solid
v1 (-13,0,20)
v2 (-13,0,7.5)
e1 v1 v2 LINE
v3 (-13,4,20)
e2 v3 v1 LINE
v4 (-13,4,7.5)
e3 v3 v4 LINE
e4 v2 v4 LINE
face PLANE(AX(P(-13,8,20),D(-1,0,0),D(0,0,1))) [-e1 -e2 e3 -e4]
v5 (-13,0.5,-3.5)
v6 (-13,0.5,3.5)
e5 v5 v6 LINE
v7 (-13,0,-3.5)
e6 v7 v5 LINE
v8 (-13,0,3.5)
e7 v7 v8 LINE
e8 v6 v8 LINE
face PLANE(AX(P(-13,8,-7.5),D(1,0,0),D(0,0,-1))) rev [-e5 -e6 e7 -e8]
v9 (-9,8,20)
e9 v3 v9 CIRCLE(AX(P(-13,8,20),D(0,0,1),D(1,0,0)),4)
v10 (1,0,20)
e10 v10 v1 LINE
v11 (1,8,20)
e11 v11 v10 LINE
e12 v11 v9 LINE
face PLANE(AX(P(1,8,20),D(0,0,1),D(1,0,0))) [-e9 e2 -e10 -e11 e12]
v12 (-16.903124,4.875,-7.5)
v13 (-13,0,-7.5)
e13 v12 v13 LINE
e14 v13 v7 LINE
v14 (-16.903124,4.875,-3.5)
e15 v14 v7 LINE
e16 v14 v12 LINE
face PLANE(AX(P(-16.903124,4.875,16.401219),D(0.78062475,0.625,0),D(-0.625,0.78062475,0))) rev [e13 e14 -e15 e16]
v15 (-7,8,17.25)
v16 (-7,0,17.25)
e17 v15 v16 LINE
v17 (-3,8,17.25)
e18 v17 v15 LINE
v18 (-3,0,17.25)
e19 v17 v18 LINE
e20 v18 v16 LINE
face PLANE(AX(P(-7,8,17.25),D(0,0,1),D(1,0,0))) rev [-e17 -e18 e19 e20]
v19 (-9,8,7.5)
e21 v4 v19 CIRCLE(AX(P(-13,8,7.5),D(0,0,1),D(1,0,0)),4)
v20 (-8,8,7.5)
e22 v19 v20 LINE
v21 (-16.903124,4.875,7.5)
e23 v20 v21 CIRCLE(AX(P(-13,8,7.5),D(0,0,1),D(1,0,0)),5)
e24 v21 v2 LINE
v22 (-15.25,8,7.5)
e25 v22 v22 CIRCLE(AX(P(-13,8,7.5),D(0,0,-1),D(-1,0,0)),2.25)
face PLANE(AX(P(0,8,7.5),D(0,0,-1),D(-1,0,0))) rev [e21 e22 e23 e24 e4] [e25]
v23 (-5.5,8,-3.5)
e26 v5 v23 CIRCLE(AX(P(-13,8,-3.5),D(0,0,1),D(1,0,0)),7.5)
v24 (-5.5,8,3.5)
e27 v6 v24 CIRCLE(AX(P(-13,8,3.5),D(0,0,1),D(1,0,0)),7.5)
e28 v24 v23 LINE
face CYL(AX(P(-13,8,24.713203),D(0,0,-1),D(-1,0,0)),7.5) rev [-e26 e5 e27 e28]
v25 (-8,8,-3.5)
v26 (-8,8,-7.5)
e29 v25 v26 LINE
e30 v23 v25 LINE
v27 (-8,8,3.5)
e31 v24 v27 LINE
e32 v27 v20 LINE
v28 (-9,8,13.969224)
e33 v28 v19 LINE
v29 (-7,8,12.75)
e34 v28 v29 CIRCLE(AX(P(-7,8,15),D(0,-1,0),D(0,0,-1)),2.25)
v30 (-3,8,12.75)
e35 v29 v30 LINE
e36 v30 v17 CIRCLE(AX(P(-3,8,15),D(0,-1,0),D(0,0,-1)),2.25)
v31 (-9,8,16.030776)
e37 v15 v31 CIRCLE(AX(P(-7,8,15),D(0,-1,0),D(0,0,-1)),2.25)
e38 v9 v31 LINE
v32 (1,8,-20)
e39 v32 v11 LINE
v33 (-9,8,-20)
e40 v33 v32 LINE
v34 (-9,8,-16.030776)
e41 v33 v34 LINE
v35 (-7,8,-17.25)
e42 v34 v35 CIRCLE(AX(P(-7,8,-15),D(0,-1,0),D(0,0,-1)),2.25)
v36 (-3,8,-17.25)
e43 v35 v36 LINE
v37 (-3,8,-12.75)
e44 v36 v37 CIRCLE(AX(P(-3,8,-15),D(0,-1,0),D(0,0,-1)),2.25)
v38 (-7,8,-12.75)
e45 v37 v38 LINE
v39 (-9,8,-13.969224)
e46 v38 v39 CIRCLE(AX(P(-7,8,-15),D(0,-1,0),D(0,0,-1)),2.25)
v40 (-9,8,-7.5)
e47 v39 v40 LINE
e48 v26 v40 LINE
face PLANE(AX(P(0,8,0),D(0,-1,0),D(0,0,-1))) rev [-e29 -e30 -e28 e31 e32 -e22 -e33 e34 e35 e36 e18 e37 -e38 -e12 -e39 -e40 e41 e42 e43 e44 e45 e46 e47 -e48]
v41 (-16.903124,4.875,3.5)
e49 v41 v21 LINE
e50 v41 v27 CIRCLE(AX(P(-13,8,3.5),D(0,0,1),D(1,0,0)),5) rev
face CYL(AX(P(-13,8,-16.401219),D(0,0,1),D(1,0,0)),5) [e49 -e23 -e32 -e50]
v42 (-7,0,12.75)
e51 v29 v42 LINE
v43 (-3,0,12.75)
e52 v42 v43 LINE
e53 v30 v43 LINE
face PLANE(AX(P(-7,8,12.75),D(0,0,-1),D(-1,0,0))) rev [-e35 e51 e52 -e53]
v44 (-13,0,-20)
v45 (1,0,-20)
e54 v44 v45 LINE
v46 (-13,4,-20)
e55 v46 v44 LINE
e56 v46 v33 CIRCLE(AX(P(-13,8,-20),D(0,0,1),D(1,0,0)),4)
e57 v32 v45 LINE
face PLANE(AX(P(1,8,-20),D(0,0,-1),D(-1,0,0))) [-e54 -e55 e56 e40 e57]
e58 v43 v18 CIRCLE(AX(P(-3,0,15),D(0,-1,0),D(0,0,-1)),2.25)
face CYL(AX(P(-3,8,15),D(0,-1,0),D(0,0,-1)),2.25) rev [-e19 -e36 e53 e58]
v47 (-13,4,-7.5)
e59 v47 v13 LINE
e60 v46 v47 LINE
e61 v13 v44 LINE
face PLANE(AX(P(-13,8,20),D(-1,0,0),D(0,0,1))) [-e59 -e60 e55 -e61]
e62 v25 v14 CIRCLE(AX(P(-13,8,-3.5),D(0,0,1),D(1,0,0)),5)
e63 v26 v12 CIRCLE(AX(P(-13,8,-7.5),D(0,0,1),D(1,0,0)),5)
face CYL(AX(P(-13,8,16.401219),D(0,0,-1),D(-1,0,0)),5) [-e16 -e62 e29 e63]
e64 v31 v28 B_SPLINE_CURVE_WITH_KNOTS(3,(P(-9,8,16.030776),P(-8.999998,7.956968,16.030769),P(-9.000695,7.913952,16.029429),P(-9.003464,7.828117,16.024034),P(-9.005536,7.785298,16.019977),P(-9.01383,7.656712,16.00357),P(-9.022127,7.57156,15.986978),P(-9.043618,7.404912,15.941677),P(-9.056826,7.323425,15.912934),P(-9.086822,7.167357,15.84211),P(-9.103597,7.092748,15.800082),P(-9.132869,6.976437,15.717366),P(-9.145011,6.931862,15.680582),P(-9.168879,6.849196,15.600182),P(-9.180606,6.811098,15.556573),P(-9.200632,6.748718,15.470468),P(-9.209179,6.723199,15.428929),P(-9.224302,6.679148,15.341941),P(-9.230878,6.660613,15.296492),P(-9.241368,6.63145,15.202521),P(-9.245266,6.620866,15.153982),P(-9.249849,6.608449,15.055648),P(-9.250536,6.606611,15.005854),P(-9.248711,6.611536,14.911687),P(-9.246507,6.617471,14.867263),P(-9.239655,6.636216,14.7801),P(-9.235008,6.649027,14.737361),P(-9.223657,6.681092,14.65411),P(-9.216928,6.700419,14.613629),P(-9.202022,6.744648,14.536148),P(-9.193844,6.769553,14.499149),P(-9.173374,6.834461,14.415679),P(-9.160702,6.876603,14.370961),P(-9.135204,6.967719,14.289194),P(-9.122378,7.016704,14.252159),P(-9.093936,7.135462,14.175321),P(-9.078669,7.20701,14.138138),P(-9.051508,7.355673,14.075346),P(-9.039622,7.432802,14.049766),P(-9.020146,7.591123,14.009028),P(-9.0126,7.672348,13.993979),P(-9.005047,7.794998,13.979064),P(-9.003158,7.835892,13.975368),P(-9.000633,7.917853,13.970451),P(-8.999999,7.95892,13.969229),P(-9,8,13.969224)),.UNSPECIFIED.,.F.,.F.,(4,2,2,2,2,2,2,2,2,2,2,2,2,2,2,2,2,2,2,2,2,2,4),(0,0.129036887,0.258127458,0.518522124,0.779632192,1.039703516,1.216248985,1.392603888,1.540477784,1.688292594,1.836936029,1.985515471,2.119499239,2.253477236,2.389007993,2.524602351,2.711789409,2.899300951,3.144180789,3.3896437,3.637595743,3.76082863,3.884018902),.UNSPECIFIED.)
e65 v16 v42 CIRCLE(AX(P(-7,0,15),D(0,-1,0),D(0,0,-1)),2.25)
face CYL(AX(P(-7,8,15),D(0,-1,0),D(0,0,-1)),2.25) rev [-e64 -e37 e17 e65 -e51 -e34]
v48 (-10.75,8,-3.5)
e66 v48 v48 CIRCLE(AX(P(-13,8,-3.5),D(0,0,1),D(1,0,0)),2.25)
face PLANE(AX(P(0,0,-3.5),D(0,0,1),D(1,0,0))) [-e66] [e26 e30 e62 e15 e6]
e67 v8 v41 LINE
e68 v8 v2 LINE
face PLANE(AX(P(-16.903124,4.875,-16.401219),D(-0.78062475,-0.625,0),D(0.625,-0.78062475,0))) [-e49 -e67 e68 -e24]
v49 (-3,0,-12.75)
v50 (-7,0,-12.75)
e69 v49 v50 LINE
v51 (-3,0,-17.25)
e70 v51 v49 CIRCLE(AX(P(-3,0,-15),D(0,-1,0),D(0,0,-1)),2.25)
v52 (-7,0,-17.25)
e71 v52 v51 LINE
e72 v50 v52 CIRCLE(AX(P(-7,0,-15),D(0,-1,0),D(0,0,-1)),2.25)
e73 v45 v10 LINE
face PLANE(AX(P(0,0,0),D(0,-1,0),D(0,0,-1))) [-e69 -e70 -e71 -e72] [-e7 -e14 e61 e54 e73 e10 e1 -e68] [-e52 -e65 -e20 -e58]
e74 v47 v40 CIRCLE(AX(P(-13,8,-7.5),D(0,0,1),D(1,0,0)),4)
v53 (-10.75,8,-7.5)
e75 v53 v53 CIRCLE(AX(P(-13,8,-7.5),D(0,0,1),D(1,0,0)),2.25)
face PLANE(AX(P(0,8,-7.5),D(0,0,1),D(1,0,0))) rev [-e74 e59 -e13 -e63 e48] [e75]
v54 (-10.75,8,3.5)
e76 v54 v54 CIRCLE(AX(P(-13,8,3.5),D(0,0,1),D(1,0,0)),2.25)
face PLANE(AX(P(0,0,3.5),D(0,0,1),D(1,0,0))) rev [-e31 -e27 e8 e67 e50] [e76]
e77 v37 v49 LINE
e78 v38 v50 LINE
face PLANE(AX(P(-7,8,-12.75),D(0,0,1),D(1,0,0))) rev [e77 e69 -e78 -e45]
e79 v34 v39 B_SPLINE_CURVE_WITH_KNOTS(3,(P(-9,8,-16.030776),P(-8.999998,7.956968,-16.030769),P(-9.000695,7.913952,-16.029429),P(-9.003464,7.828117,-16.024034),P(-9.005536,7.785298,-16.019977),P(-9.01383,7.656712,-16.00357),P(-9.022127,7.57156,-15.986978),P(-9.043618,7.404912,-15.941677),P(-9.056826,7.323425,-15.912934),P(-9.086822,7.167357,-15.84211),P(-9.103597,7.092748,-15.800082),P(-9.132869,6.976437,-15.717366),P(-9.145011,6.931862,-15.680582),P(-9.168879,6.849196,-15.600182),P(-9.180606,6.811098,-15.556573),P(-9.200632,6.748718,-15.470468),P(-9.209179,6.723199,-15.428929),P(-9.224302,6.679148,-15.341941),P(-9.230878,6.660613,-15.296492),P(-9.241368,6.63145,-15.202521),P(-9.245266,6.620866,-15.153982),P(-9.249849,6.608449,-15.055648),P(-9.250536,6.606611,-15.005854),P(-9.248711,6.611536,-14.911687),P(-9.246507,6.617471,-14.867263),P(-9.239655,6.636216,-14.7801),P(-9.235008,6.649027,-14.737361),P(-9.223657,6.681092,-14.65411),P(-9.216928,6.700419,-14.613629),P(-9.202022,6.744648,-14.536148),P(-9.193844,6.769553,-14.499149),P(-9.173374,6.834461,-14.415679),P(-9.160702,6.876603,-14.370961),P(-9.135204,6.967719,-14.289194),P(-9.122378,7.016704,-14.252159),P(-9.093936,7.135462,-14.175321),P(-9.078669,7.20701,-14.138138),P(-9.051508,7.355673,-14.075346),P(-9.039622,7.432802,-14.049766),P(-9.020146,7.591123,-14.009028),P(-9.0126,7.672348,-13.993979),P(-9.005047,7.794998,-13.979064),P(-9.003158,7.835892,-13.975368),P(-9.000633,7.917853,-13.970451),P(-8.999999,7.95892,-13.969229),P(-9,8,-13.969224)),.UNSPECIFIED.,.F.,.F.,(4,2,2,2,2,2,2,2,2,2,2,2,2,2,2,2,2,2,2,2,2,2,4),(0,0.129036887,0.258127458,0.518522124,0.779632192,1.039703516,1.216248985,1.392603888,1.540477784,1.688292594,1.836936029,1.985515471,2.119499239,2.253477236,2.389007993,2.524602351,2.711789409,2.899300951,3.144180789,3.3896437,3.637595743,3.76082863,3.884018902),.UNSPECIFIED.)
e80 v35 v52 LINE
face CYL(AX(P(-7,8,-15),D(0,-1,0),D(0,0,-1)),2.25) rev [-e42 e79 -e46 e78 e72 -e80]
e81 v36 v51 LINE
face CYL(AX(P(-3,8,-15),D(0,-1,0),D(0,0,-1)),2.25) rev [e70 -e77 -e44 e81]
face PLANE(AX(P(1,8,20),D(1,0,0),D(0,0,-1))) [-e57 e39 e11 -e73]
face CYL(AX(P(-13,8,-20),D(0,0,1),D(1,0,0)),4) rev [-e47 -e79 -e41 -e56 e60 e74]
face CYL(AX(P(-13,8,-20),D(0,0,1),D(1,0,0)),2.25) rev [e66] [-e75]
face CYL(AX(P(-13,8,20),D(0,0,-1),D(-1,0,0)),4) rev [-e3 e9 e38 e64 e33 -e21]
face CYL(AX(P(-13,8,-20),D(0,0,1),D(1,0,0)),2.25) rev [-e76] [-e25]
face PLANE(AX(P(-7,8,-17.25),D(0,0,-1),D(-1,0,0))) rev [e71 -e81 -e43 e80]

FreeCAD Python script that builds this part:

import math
import FreeCAD as App
import Part
import Sketcher

V = App.Vector

doc = App.newDocument("Part")
body = doc.addObject("PartDesign::Body", "Body")

# Sketch on XZ plane
sketch1 = body.newObject("Sketcher::SketchObject", "Sketch")
sketch1.AttachmentSupport = (doc.getObject("XZ_Plane"), [""])
sketch1.MapMode = "FlatFace"
sketch1.addGeometry(Part.LineSegment(V(-13, -8, 0), V(-13, 8, 0)), False)
sketch1.addGeometry(Part.LineSegment(V(-13, 8, 0), V(0, 8, 0)), False)
sketch1.addGeometry(Part.LineSegment(V(0, 8, 0), V(0, -8, 0)), False)
sketch1.addGeometry(Part.LineSegment(V(0, -8, 0), V(-13, -8, 0)), False)
sketch1.addConstraint(Sketcher.Constraint("Coincident", 0, 2, 1, 1))
sketch1.addConstraint(Sketcher.Constraint("Coincident", 1, 2, 2, 1))
sketch1.addConstraint(Sketcher.Constraint("Coincident", 2, 2, 3, 1))
sketch1.addConstraint(Sketcher.Constraint("Coincident", 3, 2, 0, 1))
sketch1.addConstraint(Sketcher.Constraint("Vertical", 0))
sketch1.addConstraint(Sketcher.Constraint("Horizontal", 1))
sketch1.addConstraint(Sketcher.Constraint("Vertical", 2))
sketch1.addConstraint(Sketcher.Constraint("Horizontal", 3))
sketch1.addConstraint(Sketcher.Constraint("Symmetric", 1, 2, 2, 2, -1, 1))
sketch1.addConstraint(Sketcher.Constraint("DistanceX", 1, 1, 1, 2, 13.0))
sketch1.addConstraint(Sketcher.Constraint("DistanceY", 0, 1, 0, 2, 15.0))
pad1 = body.newObject("PartDesign::Pad", "Pad")
pad1.Profile = sketch1
pad1.Length = 8
pad1.Reversed = True

# Sketch on XY plane
sketch2 = body.newObject("Sketcher::SketchObject", "Sketch001")
sketch2.AttachmentSupport = (doc.getObject("XY_Plane"), [""])
sketch2.MapMode = "FlatFace"
sketch2.AttachmentOffset = App.Placement(V(0, 0, 7.5), App.Rotation())
sketch2.addGeometry(Part.LineSegment(V(-16.9, 4.9, 0), V(-13, 0, 0)), False)
sketch2.addGeometry(Part.LineSegment(V(-13, 0, 0), V(-13, 3, 0)), False)
sketch2.addGeometry(Part.ArcOfCircle(Part.Circle(V(-13, 8, 0), V(0, 0, 1), 5), math.radians(-90), math.radians(219)), False)
sketch2.addConstraint(Sketcher.Constraint("Coincident", 0, 2, 1, 1))
sketch2.addConstraint(Sketcher.Constraint("Coincident", 1, 2, 2, 1))
sketch2.addConstraint(Sketcher.Constraint("Tangent", 2, 2, 0, 1))
sketch2.addConstraint(Sketcher.Constraint("Vertical", 1))
sketch2.addConstraint(Sketcher.Constraint("PointOnObject", 0, 2, -1))
sketch2.addConstraint(Sketcher.Constraint("Vertical", 2, 3, 0, 2))
sketch2.addConstraint(Sketcher.Constraint("Radius", 2, 5.0))
sketch2.addConstraint(Sketcher.Constraint("DistanceY", 1, 1, 1, 2, 3.0))
sketch2.addConstraint(Sketcher.Constraint("DistanceX", 2, 3, -1, 1, 13.0))
pad2 = body.newObject("PartDesign::Pad", "Pad001")
pad2.Profile = sketch2
pad2.Length = 4
pad2.Reversed = True
doc.recompute()

mirrored = body.newObject("PartDesign::Mirrored", "Mirrored")
mirrored.Originals = [pad2]
mirrored.MirrorPlane = (doc.getObject("XY_Plane"), [""])
body.Tip = mirrored

# Sketch on XZ plane
sketch3 = body.newObject("Sketcher::SketchObject", "Sketch002")
sketch3.AttachmentSupport = (doc.getObject("XZ_Plane"), [""])
sketch3.MapMode = "FlatFace"
sketch3.addGeometry(Part.LineSegment(V(-13, 20, 0), V(-13, -20, 0)), False)
sketch3.addGeometry(Part.LineSegment(V(-13, -20, 0), V(1, -20, 0)), False)
sketch3.addGeometry(Part.LineSegment(V(1, -20, 0), V(1, 20, 0)), False)
sketch3.addGeometry(Part.LineSegment(V(1, 20, 0), V(-13, 20, 0)), False)
sketch3.addGeometry(Part.ArcOfCircle(Part.Circle(V(-7, -15, 0), V(0, 0, 1), 2.2), math.radians(90), math.radians(270)), False)
sketch3.addGeometry(Part.LineSegment(V(-7, -12.8, 0), V(-3, -12.8, 0)), False)
sketch3.addGeometry(Part.ArcOfCircle(Part.Circle(V(-3, -15, 0), V(0, 0, 1), 2.2), math.radians(-90), math.radians(90)), False)
sketch3.addGeometry(Part.LineSegment(V(-3, -17.2, 0), V(-7, -17.2, 0)), False)
sketch3.addGeometry(Part.ArcOfCircle(Part.Circle(V(-7, 15, 0), V(0, 0, 1), 2.2), math.radians(90), math.radians(270)), False)
sketch3.addGeometry(Part.LineSegment(V(-7, 17.2, 0), V(-3, 17.2, 0)), False)
sketch3.addGeometry(Part.ArcOfCircle(Part.Circle(V(-3, 15, 0), V(0, 0, 1), 2.2), math.radians(-90), math.radians(90)), False)
sketch3.addGeometry(Part.LineSegment(V(-3, 12.8, 0), V(-7, 12.8, 0)), False)
sketch3.addConstraint(Sketcher.Constraint("Coincident", 0, 2, 1, 1))
sketch3.addConstraint(Sketcher.Constraint("Coincident", 1, 2, 2, 1))
sketch3.addConstraint(Sketcher.Constraint("Coincident", 2, 2, 3, 1))
sketch3.addConstraint(Sketcher.Constraint("Coincident", 3, 2, 0, 1))
sketch3.addConstraint(Sketcher.Constraint("Tangent", 4, 1, 5, 1))
sketch3.addConstraint(Sketcher.Constraint("Tangent", 5, 2, 6, 2))
sketch3.addConstraint(Sketcher.Constraint("Tangent", 6, 1, 7, 1))
sketch3.addConstraint(Sketcher.Constraint("Tangent", 7, 2, 4, 2))
sketch3.addConstraint(Sketcher.Constraint("Tangent", 8, 1, 9, 1))
sketch3.addConstraint(Sketcher.Constraint("Tangent", 9, 2, 10, 2))
sketch3.addConstraint(Sketcher.Constraint("Tangent", 10, 1, 11, 1))
sketch3.addConstraint(Sketcher.Constraint("Tangent", 11, 2, 8, 2))
sketch3.addConstraint(Sketcher.Constraint("Vertical", 0))
sketch3.addConstraint(Sketcher.Constraint("Horizontal", 1))
sketch3.addConstraint(Sketcher.Constraint("Vertical", 2))
sketch3.addConstraint(Sketcher.Constraint("Horizontal", 3))
sketch3.addConstraint(Sketcher.Constraint("Horizontal", 5))
sketch3.addConstraint(Sketcher.Constraint("Horizontal", 7))
sketch3.addConstraint(Sketcher.Constraint("Horizontal", 9))
sketch3.addConstraint(Sketcher.Constraint("Horizontal", 11))
sketch3.addConstraint(Sketcher.Constraint("Equal", 6, 8))
sketch3.addConstraint(Sketcher.Constraint("Symmetric", 4, 3, 8, 3, -1))
sketch3.addConstraint(Sketcher.Constraint("Vertical", 6, 3, 10, 3))
sketch3.addConstraint(Sketcher.Constraint("DistanceX", 1, 1, 1, 2, 14.0))
sketch3.addConstraint(Sketcher.Constraint("DistanceX", 5, 1, 5, 2, 4.0))
sketch3.addConstraint(Sketcher.Constraint("DistanceY", 0, 2, 0, 1, 40.0))
sketch3.addConstraint(Sketcher.Constraint("Radius", 4, 2.25))
sketch3.addConstraint(Sketcher.Constraint("DistanceX", 4, 3, -1, 1, 7.0))
sketch3.addConstraint(Sketcher.Constraint("DistanceY", 4, 3, -1, 1, 15.0))
sketch3.addConstraint(Sketcher.Constraint("DistanceX", 0, 2, -1, 1, 13.0))
sketch3.addConstraint(Sketcher.Constraint("DistanceY", 0, 2, -1, 1, 20.0))
pad3 = body.newObject("PartDesign::Pad", "Pad002")
pad3.Profile = sketch3
pad3.Length = 8
pad3.Reversed = True

# Sketch on XY plane
sketch4 = body.newObject("Sketcher::SketchObject", "Sketch003")
sketch4.AttachmentSupport = (doc.getObject("XY_Plane"), [""])
sketch4.MapMode = "FlatFace"
sketch4.AttachmentOffset = App.Placement(V(0, 0, -3.5), App.Rotation())
sketch4.addGeometry(Part.Circle(V(-13, 8, 0), V(0, 0, 1), 8), False)
sketch4.addConstraint(Sketcher.Constraint("Diameter", 0, 15.0))
sketch4.addConstraint(Sketcher.Constraint("DistanceX", 0, 3, -1, 1, 13.0))
sketch4.addConstraint(Sketcher.Constraint("DistanceY", -1, 1, 0, 3, 8.0))
pocket1 = body.newObject("PartDesign::Pocket", "Pocket")
pocket1.Profile = sketch4
pocket1.Length = 7
pocket1.Reversed = True

# Sketch on XY plane
sketch5 = body.newObject("Sketcher::SketchObject", "Sketch004")
sketch5.AttachmentSupport = (doc.getObject("XY_Plane"), [""])
sketch5.MapMode = "FlatFace"
sketch5.AttachmentOffset = App.Placement(V(0, 0, 7.5), App.Rotation())
sketch5.addGeometry(Part.Circle(V(-13, 8, 0), V(0, 0, 1), 2.2), False)
sketch5.addConstraint(Sketcher.Constraint("Diameter", 0, 4.5))
sketch5.addConstraint(Sketcher.Constraint("DistanceX", 0, 3, -1, 1, 13.0))
sketch5.addConstraint(Sketcher.Constraint("DistanceY", -1, 1, 0, 3, 8.0))
pocket2 = body.newObject("PartDesign::Pocket", "Pocket001")
pocket2.Profile = sketch5
pocket2.Type = "ThroughAll"
pocket2.Midplane = True

# Sketch on XY plane
sketch6 = body.newObject("Sketcher::SketchObject", "Sketch005")
sketch6.AttachmentSupport = (doc.getObject("XY_Plane"), [""])
sketch6.MapMode = "FlatFace"
sketch6.AttachmentOffset = App.Placement(V(0, 0, 7.5), App.Rotation())
sketch6.addGeometry(Part.Circle(V(-13, 8, 0), V(0, 0, 1), 4), False)
sketch6.addConstraint(Sketcher.Constraint("Diameter", 0, 8.0))
sketch6.addConstraint(Sketcher.Constraint("DistanceX", 0, 3, -1, 1, 13.0))
sketch6.addConstraint(Sketcher.Constraint("DistanceY", -1, 1, 0, 3, 8.0))
pocket3 = body.newObject("PartDesign::Pocket", "Pocket002")
pocket3.Profile = sketch6
pocket3.Type = "ThroughAll"
pocket3.Reversed = True
doc.recompute()

mirrored2 = body.newObject("PartDesign::Mirrored", "Mirrored001")
mirrored2.Originals = [pocket3]
mirrored2.MirrorPlane = (doc.getObject("XY_Plane"), [""])
body.Tip = mirrored2

doc.recompute()
